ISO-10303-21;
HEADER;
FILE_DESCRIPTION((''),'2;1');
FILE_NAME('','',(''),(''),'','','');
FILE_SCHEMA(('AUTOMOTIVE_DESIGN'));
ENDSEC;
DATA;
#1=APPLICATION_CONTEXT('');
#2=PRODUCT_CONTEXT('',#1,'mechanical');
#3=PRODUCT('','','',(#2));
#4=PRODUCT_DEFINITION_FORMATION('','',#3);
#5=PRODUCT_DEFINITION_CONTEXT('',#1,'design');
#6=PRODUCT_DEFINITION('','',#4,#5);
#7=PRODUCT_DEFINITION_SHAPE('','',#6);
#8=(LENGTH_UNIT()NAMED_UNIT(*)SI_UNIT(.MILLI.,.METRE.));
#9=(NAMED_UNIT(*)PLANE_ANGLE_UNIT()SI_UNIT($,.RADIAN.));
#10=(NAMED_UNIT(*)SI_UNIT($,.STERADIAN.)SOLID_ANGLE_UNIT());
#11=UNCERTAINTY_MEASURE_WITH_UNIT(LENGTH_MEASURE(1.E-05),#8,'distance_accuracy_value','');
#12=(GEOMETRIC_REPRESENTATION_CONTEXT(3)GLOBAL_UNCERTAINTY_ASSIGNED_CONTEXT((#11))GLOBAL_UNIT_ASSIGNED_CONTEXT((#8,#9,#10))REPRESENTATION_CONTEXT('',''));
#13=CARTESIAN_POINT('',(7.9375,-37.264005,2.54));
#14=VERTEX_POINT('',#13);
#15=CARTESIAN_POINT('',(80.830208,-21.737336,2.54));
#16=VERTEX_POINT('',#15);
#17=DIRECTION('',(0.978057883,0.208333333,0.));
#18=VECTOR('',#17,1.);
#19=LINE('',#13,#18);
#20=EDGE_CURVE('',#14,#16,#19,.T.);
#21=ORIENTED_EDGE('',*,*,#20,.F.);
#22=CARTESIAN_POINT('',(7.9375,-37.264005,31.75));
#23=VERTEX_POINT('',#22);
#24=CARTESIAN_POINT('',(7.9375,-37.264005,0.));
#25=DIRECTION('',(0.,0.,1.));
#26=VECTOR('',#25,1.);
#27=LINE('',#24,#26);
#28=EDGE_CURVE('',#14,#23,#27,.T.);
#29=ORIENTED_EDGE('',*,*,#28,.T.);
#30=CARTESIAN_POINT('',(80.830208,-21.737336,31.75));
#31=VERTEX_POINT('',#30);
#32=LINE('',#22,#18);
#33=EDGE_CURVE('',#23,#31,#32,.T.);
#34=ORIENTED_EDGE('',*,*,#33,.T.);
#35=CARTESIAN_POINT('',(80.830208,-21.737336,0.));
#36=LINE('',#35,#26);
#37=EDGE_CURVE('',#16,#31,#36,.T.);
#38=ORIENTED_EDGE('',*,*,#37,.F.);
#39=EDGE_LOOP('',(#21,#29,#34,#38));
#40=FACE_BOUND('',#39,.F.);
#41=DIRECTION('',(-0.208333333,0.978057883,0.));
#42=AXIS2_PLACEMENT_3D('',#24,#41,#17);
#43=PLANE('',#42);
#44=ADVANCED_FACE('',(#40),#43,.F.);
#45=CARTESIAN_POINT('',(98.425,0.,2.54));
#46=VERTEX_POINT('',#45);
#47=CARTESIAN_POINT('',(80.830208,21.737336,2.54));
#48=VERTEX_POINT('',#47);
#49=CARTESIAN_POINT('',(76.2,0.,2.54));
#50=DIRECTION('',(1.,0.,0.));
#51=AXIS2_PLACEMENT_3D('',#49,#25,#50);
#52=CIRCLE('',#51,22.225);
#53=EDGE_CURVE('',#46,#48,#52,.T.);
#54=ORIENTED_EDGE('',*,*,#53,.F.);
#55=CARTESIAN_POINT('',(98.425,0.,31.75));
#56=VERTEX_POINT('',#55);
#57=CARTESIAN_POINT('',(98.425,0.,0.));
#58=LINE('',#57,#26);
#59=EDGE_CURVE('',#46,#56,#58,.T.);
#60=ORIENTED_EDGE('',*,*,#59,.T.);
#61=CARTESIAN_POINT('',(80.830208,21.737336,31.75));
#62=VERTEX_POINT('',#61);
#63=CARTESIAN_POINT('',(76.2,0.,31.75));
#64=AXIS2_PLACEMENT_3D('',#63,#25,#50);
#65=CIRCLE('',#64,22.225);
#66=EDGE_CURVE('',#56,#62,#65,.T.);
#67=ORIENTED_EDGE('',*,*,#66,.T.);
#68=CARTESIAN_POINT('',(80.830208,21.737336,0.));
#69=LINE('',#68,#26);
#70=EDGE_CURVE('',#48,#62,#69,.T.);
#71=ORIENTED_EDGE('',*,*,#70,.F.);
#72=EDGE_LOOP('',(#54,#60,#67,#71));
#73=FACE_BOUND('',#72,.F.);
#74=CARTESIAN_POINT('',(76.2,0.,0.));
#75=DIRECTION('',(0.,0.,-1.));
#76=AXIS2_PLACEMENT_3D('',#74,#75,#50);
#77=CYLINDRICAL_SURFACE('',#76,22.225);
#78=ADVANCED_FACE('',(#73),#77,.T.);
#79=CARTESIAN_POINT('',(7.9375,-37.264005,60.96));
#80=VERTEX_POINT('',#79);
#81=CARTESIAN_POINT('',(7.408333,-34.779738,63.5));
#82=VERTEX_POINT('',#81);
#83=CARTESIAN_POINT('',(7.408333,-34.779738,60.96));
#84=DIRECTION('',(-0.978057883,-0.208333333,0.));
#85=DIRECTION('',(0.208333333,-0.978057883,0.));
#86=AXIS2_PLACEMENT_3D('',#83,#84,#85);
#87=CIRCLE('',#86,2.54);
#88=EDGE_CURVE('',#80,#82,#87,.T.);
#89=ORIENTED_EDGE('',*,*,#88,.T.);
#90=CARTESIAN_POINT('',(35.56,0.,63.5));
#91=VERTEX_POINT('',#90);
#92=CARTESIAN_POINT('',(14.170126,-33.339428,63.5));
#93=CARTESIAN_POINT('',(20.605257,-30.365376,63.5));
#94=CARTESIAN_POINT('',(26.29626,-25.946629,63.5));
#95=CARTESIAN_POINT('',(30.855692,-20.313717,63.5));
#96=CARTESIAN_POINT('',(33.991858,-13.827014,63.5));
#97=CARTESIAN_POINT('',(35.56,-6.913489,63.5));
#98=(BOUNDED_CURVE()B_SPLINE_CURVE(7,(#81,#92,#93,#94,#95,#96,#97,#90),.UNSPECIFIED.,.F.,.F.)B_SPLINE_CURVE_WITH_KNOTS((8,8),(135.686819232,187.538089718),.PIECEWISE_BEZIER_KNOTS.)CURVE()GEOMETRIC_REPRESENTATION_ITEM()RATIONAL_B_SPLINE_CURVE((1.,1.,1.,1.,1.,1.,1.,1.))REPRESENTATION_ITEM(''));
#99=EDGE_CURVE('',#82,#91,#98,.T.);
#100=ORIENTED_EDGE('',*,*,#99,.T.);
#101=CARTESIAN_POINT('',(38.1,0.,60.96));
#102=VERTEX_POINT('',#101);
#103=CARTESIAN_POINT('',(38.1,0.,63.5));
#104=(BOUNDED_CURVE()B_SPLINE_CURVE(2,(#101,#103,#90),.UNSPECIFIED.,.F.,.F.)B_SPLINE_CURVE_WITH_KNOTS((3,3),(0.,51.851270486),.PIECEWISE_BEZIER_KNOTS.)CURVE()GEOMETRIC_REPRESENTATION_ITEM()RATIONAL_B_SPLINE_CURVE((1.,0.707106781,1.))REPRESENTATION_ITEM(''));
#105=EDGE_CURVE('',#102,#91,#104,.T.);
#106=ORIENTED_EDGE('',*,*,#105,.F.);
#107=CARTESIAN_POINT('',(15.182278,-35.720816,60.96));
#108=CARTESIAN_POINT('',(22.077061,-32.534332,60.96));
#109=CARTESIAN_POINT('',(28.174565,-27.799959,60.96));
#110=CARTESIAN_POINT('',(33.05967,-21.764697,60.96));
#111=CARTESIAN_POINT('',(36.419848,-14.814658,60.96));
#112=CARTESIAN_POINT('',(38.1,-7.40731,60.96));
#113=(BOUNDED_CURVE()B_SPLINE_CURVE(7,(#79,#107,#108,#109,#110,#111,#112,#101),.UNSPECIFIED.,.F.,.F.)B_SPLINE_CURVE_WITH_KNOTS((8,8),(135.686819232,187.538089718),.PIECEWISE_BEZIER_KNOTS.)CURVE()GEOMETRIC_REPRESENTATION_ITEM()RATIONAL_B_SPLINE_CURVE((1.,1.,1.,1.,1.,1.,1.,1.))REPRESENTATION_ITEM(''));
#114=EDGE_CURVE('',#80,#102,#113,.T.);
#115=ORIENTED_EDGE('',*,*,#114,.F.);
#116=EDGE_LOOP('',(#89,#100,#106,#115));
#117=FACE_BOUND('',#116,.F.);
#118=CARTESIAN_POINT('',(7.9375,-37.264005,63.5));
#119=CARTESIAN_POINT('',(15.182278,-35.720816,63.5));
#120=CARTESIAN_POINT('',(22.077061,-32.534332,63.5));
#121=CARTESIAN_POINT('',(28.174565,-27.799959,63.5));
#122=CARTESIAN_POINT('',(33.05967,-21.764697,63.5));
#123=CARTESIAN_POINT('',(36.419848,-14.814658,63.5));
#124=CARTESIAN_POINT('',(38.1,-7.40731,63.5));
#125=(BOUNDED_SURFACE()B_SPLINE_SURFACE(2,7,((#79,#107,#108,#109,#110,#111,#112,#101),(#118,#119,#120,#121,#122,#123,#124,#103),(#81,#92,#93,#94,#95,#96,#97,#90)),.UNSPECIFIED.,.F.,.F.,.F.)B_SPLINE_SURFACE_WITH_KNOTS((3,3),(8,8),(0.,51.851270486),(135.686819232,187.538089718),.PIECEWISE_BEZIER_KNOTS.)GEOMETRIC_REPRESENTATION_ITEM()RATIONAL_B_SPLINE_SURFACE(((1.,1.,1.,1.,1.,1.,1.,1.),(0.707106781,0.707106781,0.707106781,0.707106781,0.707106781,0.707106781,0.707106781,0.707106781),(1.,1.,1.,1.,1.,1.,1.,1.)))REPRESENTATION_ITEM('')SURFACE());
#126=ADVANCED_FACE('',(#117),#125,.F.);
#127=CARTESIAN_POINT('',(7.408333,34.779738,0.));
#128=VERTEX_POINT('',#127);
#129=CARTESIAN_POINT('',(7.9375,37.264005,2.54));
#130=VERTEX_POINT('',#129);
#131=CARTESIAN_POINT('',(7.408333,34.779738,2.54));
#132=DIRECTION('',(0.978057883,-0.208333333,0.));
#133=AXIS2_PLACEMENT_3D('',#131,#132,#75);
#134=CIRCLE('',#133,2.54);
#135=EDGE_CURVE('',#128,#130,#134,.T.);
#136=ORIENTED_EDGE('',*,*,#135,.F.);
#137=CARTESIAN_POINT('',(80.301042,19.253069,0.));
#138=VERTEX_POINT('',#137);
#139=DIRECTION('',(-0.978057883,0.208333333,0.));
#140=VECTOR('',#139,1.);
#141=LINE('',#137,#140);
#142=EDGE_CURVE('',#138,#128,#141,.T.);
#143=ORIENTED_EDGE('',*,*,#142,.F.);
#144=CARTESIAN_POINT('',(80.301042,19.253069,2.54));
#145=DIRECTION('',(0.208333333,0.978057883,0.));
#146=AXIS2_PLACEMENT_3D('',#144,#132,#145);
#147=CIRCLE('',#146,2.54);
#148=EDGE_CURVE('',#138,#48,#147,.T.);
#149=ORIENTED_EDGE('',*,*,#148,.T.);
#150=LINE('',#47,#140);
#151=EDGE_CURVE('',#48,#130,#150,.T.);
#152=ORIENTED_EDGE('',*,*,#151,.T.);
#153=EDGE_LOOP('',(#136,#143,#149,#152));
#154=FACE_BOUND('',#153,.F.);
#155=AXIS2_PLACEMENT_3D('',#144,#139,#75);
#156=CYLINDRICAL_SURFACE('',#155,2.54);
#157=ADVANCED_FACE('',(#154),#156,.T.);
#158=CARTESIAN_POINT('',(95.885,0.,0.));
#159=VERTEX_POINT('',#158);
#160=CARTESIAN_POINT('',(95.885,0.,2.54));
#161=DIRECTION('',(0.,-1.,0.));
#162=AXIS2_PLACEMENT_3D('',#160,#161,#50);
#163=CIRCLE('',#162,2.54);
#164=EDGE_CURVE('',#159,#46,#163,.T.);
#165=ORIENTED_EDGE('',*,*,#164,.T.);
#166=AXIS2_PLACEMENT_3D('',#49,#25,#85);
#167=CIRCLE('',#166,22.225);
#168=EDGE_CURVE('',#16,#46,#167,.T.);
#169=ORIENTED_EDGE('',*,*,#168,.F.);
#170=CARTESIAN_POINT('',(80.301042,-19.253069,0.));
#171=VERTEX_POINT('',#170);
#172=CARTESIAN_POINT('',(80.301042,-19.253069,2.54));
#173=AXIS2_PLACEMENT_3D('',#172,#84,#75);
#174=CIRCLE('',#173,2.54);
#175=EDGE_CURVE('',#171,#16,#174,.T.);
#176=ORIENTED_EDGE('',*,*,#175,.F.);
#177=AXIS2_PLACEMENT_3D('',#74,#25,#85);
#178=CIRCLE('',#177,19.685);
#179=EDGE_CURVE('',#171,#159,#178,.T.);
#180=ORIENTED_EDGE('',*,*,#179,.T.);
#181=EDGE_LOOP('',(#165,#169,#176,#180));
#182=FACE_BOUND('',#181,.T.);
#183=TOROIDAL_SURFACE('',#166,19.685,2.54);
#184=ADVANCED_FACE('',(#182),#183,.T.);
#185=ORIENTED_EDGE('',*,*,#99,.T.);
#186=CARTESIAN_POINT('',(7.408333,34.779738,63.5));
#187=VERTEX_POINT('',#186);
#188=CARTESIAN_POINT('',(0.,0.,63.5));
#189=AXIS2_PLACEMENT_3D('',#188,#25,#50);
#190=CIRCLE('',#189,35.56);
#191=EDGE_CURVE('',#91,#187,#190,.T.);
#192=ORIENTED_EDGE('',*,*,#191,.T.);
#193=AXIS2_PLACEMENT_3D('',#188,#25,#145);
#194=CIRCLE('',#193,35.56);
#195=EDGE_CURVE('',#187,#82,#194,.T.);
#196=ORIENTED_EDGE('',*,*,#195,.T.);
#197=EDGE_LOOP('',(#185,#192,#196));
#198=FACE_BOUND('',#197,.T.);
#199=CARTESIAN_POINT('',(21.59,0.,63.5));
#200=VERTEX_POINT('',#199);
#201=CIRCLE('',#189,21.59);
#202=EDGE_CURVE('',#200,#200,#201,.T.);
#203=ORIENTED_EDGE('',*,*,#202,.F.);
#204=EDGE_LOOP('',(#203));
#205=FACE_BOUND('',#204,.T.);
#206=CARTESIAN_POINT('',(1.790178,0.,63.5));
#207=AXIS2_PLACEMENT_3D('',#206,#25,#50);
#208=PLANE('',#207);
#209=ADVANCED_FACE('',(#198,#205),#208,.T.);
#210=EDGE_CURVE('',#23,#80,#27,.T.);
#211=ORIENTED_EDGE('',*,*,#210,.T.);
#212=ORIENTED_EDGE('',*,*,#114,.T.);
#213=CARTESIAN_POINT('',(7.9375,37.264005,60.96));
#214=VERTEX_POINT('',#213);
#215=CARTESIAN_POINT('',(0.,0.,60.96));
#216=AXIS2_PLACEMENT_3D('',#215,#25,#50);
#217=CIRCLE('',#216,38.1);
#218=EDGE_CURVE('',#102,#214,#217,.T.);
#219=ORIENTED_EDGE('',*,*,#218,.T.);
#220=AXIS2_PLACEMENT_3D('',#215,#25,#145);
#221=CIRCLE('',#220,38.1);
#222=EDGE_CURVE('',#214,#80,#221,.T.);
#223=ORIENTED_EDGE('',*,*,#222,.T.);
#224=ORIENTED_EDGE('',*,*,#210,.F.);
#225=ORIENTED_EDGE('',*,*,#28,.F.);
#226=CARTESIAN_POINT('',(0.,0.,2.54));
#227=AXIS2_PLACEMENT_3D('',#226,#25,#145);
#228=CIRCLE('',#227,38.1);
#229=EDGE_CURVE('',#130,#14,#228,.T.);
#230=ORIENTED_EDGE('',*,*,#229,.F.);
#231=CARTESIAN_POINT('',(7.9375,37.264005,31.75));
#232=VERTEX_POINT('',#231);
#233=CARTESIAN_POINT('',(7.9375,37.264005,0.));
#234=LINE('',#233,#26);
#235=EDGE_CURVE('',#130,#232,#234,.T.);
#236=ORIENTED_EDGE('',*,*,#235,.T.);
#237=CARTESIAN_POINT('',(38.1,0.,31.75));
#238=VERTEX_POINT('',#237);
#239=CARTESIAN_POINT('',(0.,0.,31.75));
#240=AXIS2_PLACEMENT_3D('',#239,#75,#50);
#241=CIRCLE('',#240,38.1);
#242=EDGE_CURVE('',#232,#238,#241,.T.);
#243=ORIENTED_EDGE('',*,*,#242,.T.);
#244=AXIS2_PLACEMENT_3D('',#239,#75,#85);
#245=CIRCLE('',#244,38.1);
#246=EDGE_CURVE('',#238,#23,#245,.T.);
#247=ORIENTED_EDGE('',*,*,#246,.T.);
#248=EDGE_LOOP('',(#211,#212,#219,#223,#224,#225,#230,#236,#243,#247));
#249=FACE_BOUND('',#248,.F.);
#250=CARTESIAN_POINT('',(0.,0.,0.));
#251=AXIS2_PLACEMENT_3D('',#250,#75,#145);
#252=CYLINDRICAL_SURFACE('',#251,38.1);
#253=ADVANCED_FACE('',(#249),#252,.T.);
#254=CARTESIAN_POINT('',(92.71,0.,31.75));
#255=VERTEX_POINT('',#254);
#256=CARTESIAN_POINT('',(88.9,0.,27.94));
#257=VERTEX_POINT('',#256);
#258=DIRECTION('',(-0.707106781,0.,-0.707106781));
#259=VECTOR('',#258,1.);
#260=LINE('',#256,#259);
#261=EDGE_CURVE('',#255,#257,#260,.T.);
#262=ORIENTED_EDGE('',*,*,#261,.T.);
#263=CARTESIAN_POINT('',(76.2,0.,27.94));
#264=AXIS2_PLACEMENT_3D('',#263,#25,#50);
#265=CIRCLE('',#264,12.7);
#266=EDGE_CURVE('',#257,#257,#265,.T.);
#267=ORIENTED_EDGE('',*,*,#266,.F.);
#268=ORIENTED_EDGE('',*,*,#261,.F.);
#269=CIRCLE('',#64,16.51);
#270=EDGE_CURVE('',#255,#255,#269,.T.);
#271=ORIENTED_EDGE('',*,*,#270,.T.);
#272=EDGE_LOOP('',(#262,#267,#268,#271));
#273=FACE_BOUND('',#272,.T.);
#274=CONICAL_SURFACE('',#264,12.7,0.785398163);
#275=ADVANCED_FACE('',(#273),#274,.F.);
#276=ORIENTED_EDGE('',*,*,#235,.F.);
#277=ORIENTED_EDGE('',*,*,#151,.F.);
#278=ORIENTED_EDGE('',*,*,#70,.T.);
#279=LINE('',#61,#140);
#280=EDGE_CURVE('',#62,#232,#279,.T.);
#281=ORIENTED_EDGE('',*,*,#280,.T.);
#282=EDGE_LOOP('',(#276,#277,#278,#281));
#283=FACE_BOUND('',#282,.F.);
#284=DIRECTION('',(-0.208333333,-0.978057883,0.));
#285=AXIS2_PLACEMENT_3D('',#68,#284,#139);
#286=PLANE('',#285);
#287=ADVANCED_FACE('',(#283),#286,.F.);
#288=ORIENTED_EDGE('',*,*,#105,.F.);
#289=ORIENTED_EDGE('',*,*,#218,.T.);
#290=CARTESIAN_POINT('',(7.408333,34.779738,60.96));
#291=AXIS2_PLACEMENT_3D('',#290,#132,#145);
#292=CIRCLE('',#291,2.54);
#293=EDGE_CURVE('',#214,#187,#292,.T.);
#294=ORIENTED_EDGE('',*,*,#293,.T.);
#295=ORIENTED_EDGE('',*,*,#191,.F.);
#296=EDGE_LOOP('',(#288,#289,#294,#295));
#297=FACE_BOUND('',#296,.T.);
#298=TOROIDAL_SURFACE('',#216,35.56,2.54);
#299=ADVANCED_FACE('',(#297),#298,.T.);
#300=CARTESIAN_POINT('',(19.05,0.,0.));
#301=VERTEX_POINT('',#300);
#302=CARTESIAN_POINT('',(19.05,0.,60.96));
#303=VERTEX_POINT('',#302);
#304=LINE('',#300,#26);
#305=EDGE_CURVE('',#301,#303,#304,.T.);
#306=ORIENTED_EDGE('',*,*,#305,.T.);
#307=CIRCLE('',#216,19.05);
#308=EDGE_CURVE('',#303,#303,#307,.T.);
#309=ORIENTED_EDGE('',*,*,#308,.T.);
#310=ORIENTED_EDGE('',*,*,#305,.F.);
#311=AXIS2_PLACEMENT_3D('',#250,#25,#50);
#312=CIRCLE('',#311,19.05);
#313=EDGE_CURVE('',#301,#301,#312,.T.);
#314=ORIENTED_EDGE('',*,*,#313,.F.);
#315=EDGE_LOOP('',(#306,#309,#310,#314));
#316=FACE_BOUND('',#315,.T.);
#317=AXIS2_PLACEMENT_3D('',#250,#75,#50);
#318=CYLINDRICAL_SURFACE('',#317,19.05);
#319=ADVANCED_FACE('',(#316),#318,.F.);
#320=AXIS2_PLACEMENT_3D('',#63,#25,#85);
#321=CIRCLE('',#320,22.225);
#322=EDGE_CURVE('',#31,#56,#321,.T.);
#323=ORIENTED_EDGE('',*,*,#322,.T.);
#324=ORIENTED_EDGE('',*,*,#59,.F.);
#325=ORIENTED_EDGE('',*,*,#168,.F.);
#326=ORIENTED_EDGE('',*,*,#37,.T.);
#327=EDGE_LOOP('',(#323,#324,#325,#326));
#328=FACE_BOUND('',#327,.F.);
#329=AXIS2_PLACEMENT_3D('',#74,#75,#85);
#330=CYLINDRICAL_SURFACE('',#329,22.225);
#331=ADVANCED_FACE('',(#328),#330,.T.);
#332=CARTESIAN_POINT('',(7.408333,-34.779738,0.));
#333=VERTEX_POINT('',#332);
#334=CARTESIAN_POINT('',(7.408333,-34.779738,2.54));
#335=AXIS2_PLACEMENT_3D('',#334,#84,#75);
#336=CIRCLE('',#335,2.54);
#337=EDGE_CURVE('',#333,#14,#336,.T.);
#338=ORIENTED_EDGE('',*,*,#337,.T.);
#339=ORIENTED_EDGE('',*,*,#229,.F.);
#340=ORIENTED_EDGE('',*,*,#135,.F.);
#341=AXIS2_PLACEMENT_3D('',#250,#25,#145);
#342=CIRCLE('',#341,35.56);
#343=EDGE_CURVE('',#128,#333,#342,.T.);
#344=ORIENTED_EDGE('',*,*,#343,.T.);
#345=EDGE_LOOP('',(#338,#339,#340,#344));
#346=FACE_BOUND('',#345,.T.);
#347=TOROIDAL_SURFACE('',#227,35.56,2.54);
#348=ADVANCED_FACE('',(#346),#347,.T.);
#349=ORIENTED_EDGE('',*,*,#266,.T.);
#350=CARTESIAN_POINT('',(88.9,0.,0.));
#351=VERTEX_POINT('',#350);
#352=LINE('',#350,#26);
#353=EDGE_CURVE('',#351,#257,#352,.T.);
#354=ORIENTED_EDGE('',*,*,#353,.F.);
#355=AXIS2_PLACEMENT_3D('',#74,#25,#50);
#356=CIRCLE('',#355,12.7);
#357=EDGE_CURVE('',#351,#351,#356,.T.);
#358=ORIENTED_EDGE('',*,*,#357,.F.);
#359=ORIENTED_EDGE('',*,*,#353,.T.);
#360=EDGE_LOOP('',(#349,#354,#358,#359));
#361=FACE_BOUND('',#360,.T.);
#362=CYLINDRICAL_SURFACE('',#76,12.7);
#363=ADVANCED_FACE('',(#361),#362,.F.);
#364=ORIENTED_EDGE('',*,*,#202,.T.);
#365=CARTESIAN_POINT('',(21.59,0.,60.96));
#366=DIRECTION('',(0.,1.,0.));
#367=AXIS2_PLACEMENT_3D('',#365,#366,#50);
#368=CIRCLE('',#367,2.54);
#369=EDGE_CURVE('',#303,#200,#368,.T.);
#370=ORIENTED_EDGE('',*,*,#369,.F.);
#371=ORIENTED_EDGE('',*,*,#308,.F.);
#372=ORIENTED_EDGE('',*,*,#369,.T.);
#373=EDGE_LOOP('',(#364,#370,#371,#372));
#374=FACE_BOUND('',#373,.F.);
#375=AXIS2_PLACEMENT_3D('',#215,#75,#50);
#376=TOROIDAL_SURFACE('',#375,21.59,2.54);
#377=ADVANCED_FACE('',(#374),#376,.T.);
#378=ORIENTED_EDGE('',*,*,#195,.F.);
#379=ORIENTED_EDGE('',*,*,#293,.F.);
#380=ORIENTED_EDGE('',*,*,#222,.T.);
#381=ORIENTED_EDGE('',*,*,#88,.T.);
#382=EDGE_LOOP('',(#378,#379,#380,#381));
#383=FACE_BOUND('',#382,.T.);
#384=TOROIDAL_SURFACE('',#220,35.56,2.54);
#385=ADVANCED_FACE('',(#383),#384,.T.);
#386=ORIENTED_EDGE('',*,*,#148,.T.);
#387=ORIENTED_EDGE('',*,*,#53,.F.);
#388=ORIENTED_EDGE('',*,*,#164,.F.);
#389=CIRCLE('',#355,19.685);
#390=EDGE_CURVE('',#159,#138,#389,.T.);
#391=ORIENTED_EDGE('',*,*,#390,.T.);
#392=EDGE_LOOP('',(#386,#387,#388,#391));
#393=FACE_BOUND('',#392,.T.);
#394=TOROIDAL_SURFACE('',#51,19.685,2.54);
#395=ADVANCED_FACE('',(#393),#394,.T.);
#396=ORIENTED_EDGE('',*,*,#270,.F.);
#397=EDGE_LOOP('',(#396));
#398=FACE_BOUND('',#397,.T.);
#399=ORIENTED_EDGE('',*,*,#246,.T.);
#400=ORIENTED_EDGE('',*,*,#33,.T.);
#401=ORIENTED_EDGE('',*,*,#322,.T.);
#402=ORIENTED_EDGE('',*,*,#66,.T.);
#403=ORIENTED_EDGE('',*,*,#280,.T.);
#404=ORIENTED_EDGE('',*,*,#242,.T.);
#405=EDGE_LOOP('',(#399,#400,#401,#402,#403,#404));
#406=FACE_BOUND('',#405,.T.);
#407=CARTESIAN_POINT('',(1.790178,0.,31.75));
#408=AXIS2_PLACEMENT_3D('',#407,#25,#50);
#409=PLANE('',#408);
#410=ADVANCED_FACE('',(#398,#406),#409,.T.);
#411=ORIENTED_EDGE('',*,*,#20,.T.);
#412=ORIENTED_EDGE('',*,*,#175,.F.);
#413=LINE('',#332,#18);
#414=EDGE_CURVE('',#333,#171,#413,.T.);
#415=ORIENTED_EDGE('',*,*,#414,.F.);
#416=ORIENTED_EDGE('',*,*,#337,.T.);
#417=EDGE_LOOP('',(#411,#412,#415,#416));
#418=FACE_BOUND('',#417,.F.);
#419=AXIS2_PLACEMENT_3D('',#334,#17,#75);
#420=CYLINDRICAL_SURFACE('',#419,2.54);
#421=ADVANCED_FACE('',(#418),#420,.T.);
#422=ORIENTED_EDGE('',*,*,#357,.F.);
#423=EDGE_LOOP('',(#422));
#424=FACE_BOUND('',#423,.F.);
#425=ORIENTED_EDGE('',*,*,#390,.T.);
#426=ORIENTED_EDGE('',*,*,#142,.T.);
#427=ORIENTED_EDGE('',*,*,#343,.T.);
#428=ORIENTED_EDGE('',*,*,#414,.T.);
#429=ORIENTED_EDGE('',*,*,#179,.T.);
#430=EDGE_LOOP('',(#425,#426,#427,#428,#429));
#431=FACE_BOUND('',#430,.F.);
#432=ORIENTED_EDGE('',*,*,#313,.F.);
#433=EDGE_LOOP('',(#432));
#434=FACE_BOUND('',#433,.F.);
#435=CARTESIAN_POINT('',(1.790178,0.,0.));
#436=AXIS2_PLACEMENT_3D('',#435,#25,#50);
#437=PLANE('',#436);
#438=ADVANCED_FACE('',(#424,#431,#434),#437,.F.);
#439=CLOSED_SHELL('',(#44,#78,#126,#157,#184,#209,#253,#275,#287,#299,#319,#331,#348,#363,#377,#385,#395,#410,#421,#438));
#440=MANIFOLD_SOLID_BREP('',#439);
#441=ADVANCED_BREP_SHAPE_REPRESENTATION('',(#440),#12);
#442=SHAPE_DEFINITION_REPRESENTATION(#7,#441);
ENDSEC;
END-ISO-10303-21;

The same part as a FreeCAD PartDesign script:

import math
import FreeCAD as App
import Part
import Sketcher

V = App.Vector
Q = App.Units.Quantity


def edges_at(feature, points):
    """Names of the edges that pass closest to the given points."""
    edges = feature.Shape.Edges
    near = lambda p: min(range(len(edges)), key=lambda i: edges[i].distToShape(Part.Vertex(*p))[0])
    return sorted({f"Edge{near(p) + 1}" for p in points})

doc = App.newDocument("Part")
body = doc.addObject("PartDesign::Body", "Body")

sketch1 = doc.addObject("Sketcher::SketchObject", "Sketch")
body.addObject(sketch1)
sketch1.AttachmentSupport = (doc.XY_Plane, [""])
sketch1.MapMode = "FlatFace"
sketch1.addGeometry([
    Part.ArcOfCircle(Part.Circle(V(0, 0, 0), V(0, 0, 1), 38), math.radians(78), math.radians(282)),
    Part.LineSegment(V(8, -37, 0), V(81, -22, 0)),
    Part.ArcOfCircle(Part.Circle(V(76, 0, 0), V(0, 0, 1), 22), math.radians(-78), math.radians(0)),
    Part.ArcOfCircle(Part.Circle(V(76, 0, 0), V(0, 0, 1), 22), math.radians(0), math.radians(78)),
    Part.LineSegment(V(81, 22, 0), V(8, 37, 0)),
    Part.Circle(V(0, 0, 0), V(0, 0, 1), 19),
    Part.Circle(V(76, 0, 0), V(0, 0, 1), 13),
], False)
sketch1.addConstraint([
    Sketcher.Constraint("Tangent", 0, 2, 1, 1),
    Sketcher.Constraint("Tangent", 1, 2, 2, 1),
    Sketcher.Constraint("Tangent", 2, 2, 3, 1),
    Sketcher.Constraint("Tangent", 3, 2, 4, 1),
    Sketcher.Constraint("Tangent", 4, 2, 0, 1),
    Sketcher.Constraint("Coincident", 0, 3, -1, 1),
    Sketcher.Constraint("Coincident", 5, 3, -1, 1),
    Sketcher.Constraint("Coincident", 6, 3, 2, 3),
    Sketcher.Constraint("Equal", 2, 3),
    Sketcher.Constraint("PointOnObject", 2, 3, -1),
    Sketcher.Constraint("PointOnObject", 2, 2, -1),
    Sketcher.Constraint("Diameter", 6, Q("1 in")),
    Sketcher.Constraint("Diameter", 5, Q("1.5 in")),
    Sketcher.Constraint("Radius", 0, Q("1.5 in")),
    Sketcher.Constraint("DistanceX", -1, 1, 2, 3, Q("3 in")),
    Sketcher.Constraint("Radius", 2, Q("0.875 in")),
])
pad1 = doc.addObject("PartDesign::Pad", "Pad")
body.addObject(pad1)
pad1.Profile = sketch1
pad1.Length = Q("1.25 in")

sketch2 = doc.addObject("Sketcher::SketchObject", "Sketch001")
body.addObject(sketch2)
sketch2.AttachmentSupport = (doc.XY_Plane, [""])
sketch2.MapMode = "FlatFace"
sketch2.addGeometry([
    Part.ArcOfCircle(Part.Circle(V(0, 0, 0), V(0, 0, 1), 38), math.radians(-78), math.radians(0)),
    Part.ArcOfCircle(Part.Circle(V(0, 0, 0), V(0, 0, 1), 38), math.radians(0), math.radians(78)),
    Part.ArcOfCircle(Part.Circle(V(0, 0, 0), V(0, 0, 1), 38), math.radians(78), math.radians(282)),
    Part.Circle(V(0, 0, 0), V(0, 0, 1), 19),
], False)
sketch2.addConstraint([
    Sketcher.Constraint("Tangent", 0, 2, 1, 1),
    Sketcher.Constraint("Tangent", 1, 2, 2, 1),
    Sketcher.Constraint("Tangent", 2, 2, 0, 1),
    Sketcher.Constraint("Coincident", 0, 3, -1, 1),
    Sketcher.Constraint("Coincident", 3, 3, -1, 1),
    Sketcher.Constraint("PointOnObject", 0, 2, -1),
    Sketcher.Constraint("Vertical", 1, 2, 2, 2),
    Sketcher.Constraint("Diameter", 3, Q("1.5 in")),
    Sketcher.Constraint("Radius", 0, Q("1.5 in")),
    Sketcher.Constraint("DistanceX", -1, 1, 1, 2, Q("0.3125 in")),
])
pad2 = doc.addObject("PartDesign::Pad", "Pad001")
body.addObject(pad2)
pad2.Profile = sketch2
pad2.Length = Q("2.5 in")
doc.recompute()

fillet = doc.addObject("PartDesign::Fillet", "Fillet")
body.addObject(fillet)
fillet.Base = (pad2, edges_at(pad2, [(-38.1, 0, 63.5), (-19.05, 0, 63.5), (44.384, -29.501, 0)]))
fillet.Radius = Q("0.1 in")
doc.recompute()

chamfer = doc.addObject("PartDesign::Chamfer", "Chamfer")
body.addObject(chamfer)
chamfer.Base = (fillet, edges_at(fillet, [(-21.59, 0, 63.5), (63.5, 0, 31.75)]))
chamfer.Size = Q("0.15 in")

doc.recompute()
